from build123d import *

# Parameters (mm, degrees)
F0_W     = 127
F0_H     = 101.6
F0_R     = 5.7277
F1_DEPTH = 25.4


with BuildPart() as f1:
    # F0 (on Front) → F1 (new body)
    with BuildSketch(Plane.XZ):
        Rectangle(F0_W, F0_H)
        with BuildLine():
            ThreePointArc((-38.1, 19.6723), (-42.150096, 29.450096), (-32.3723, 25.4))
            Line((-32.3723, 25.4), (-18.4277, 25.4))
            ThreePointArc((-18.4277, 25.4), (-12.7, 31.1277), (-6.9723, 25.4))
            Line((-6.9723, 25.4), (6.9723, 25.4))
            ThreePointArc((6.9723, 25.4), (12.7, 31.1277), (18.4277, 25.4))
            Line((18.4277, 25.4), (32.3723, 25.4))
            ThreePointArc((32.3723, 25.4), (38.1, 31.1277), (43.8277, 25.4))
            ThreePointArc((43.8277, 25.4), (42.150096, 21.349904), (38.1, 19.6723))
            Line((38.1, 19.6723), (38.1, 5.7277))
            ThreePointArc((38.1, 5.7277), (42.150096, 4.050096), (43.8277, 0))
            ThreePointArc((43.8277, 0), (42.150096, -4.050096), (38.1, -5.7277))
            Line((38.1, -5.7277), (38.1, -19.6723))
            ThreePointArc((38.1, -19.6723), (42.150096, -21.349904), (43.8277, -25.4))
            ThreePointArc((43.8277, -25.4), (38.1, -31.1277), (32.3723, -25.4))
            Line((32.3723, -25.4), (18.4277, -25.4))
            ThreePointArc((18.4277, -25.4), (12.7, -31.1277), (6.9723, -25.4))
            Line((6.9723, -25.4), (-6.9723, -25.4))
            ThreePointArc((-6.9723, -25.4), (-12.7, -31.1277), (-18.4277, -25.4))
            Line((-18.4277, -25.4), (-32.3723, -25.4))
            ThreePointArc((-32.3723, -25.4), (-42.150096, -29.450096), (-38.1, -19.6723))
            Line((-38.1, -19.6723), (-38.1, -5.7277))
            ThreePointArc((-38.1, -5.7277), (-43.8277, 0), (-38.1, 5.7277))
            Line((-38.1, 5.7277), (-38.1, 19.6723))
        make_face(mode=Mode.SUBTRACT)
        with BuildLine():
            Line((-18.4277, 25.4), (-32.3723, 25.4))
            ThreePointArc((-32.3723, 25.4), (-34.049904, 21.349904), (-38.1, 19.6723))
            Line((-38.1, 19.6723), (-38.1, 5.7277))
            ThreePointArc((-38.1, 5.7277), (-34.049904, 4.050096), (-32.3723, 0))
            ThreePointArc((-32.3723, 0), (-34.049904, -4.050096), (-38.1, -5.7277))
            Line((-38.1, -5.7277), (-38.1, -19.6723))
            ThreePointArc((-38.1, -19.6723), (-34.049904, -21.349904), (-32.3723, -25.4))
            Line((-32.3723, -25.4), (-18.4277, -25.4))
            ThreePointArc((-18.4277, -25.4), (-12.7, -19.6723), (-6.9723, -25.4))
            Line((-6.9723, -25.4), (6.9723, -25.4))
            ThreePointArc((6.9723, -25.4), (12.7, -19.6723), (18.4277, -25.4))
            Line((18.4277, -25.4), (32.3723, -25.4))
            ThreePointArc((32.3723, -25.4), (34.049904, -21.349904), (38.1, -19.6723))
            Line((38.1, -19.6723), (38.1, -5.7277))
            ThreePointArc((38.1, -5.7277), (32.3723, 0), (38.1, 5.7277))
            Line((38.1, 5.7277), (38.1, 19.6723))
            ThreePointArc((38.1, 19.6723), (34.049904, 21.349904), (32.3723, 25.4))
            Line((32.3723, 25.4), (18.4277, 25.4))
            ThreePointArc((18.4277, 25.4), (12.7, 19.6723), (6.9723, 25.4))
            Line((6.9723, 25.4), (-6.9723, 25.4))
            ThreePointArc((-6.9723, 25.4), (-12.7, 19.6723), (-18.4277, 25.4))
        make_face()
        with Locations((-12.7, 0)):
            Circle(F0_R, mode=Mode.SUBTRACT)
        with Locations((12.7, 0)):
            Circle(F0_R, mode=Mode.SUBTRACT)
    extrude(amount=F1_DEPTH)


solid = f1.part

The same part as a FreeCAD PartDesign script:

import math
import FreeCAD as App
import Part
import Sketcher
Q = App.Units.Quantity

doc = App.newDocument("Part")
body = doc.addObject("PartDesign::Body", "Body")

sketch1 = body.newObject("Sketcher::SketchObject", "Sketch")
sketch1.AttachmentSupport = (doc.getObject("XZ_Plane"), [""])
sketch1.MapMode = "FlatFace"
sketch1.addGeometry([
    Part.LineSegment(App.Vector(-63.5, 50.8, 0), App.Vector(-63.5, -50.8, 0)),
    Part.LineSegment(App.Vector(-63.5, -50.8, 0), App.Vector(63.5, -50.8, 0)),
    Part.LineSegment(App.Vector(63.5, -50.8, 0), App.Vector(63.5, 50.8, 0)),
    Part.LineSegment(App.Vector(63.5, 50.8, 0), App.Vector(-63.5, 50.8, 0)),
    Part.ArcOfCircle(Part.Circle(App.Vector(-38.1, -25.4, 0), App.Vector(0, 0, 1), 5.7277), math.radians(89.999997), math.radians(360.000003)),
    Part.ArcOfCircle(Part.Circle(App.Vector(-38.099998, -25.399998, 0), App.Vector(0, 0, 1), 5.727698), math.radians(-0.000017), math.radians(90.000017)),
    Part.Circle(App.Vector(-12.7, -25.4, 0), App.Vector(0, 0, 1), 5.7277),
    Part.Circle(App.Vector(12.7, -25.4, 0), App.Vector(0, 0, 1), 5.7277),
    Part.ArcOfCircle(Part.Circle(App.Vector(38.1, -25.4, 0), App.Vector(0, 0, 1), 5.7277), math.radians(180), math.radians(360)),
    Part.ArcOfCircle(Part.Circle(App.Vector(38.099998, -25.399998, 0), App.Vector(0, 0, 1), 5.727698), math.radians(89.999983), math.radians(180.000017)),
    Part.ArcOfCircle(Part.Circle(App.Vector(38.100002, -25.399998, 0), App.Vector(0, 0, 1), 5.727698), math.radians(-0.000017), math.radians(90.000017)),
    Part.ArcOfCircle(Part.Circle(App.Vector(-38.1, 0, 0), App.Vector(0, 0, 1), 5.7277), math.radians(90), math.radians(270)),
    Part.ArcOfCircle(Part.Circle(App.Vector(-38.099998, 0.000002, 0), App.Vector(0, 0, 1), 5.727698), math.radians(-0.000017), math.radians(90.000017)),
    Part.ArcOfCircle(Part.Circle(App.Vector(-38.099998, -0.000002, 0), App.Vector(0, 0, 1), 5.727698), math.radians(-90.000017), math.radians(0.000017)),
    Part.Circle(App.Vector(-12.7, 0, 0), App.Vector(0, 0, 1), 5.7277),
    Part.ArcOfCircle(Part.Circle(App.Vector(-38.1, 25.4, 0), App.Vector(0, 0, 1), 5.7277), math.radians(-0.000003), math.radians(270.000003)),
    Part.ArcOfCircle(Part.Circle(App.Vector(-38.099998, 25.399998, 0), App.Vector(0, 0, 1), 5.727698), math.radians(-90.000017), math.radians(0.000017)),
    Part.Circle(App.Vector(-12.7, 25.4, 0), App.Vector(0, 0, 1), 5.7277),
    Part.Circle(App.Vector(12.7, 0, 0), App.Vector(0, 0, 1), 5.7277),
    Part.ArcOfCircle(Part.Circle(App.Vector(38.100002, -0.000002, 0), App.Vector(0, 0, 1), 5.727698), math.radians(-90.000017), math.radians(0.000017)),
    Part.ArcOfCircle(Part.Circle(App.Vector(38.1, 0, 0), App.Vector(0, 0, 1), 5.7277), math.radians(90), math.radians(270)),
    Part.ArcOfCircle(Part.Circle(App.Vector(38.100002, 0.000002, 0), App.Vector(0, 0, 1), 5.727698), math.radians(-0.000017), math.radians(90.000017)),
    Part.Circle(App.Vector(12.7, 25.4, 0), App.Vector(0, 0, 1), 5.7277),
    Part.ArcOfCircle(Part.Circle(App.Vector(38.100002, 25.399998, 0), App.Vector(0, 0, 1), 5.727698), math.radians(-90.000017), math.radians(0.000017)),
    Part.ArcOfCircle(Part.Circle(App.Vector(38.099998, 25.399998, 0), App.Vector(0, 0, 1), 5.727698), math.radians(179.999983), math.radians(270.000017)),
    Part.ArcOfCircle(Part.Circle(App.Vector(38.1, 25.4, 0), App.Vector(0, 0, 1), 5.7277), math.radians(0), math.radians(180)),
], False)
sketch1.addConstraint([
    Sketcher.Constraint("Coincident", 0, 2, 1, 1),
    Sketcher.Constraint("Coincident", 1, 2, 2, 1),
    Sketcher.Constraint("Coincident", 2, 2, 3, 1),
    Sketcher.Constraint("Coincident", 3, 2, 0, 1),
    Sketcher.Constraint("Tangent", 4, 1, 5, 2),
    Sketcher.Constraint("Coincident", 5, 1, 4, 2),
    Sketcher.Constraint("Tangent", 8, 1, 9, 2),
    Sketcher.Constraint("Tangent", 9, 1, 10, 2),
    Sketcher.Constraint("Tangent", 10, 1, 8, 2),
    Sketcher.Constraint("Tangent", 11, 1, 12, 2),
    Sketcher.Constraint("Tangent", 12, 1, 13, 2),
    Sketcher.Constraint("Tangent", 13, 1, 11, 2),
    Sketcher.Constraint("Tangent", 15, 1, 16, 2),
    Sketcher.Constraint("Coincident", 16, 1, 15, 2),
    Sketcher.Constraint("Tangent", 19, 1, 20, 2),
    Sketcher.Constraint("Tangent", 20, 1, 21, 2),
    Sketcher.Constraint("Tangent", 21, 1, 19, 2),
    Sketcher.Constraint("Tangent", 23, 1, 24, 2),
    Sketcher.Constraint("Tangent", 24, 1, 25, 2),
    Sketcher.Constraint("Tangent", 25, 1, 23, 2),
    Sketcher.Constraint("Vertical", 0),
    Sketcher.Constraint("Horizontal", 1),
    Sketcher.Constraint("Vertical", 2),
    Sketcher.Constraint("Horizontal", 3),
    Sketcher.Constraint("Equal", 5, 6),
    Sketcher.Constraint("Equal", 6, 7),
    Sketcher.Constraint("Equal", 7, 8),
    Sketcher.Constraint("Equal", 10, 11),
    Sketcher.Constraint("Equal", 13, 14),
    Sketcher.Constraint("Equal", 14, 15),
    Sketcher.Constraint("Equal", 16, 17),
    Sketcher.Constraint("Equal", 17, 18),
    Sketcher.Constraint("Equal", 18, 19),
    Sketcher.Constraint("Equal", 21, 22),
    Sketcher.Constraint("Equal", 22, 23),
    Sketcher.Constraint("Symmetric", 8, 3, 15, 3, -1, 1),
    Sketcher.Constraint("Symmetric", 7, 3, 17, 3, -1, 1),
    Sketcher.Constraint("Symmetric", 14, 3, 18, 3, -1, 1),
    Sketcher.Constraint("Symmetric", 11, 3, 19, 3, -1, 1),
    Sketcher.Constraint("Symmetric", 6, 3, 22, 3, -1, 1),
    Sketcher.Constraint("Symmetric", 4, 3, 23, 3, -1, 1),
    Sketcher.Constraint("Symmetric", 0, 2, 2, 2, -1, 1),
    Sketcher.Constraint("Symmetric", 6, 3, 7, 3, -2),
    Sketcher.Constraint("Symmetric", 4, 3, 8, 3, -2),
    Sketcher.Constraint("Symmetric", 13, 1, 19, 1, -2),
    Sketcher.Constraint("PointOnObject", 14, 3, -1),
    Sketcher.Constraint("PointOnObject", 12, 1, -1),
    Sketcher.Constraint("PointOnObject", 21, 1, -1),
    Sketcher.Constraint("Horizontal", 5, 3, 6, 3),
    Sketcher.Constraint("Horizontal", 10, 3, 5, 1),
    Sketcher.Constraint("Horizontal", 5, 1, 8, 1),
    Sketcher.Constraint("Horizontal", 8, 1, 10, 1),
    Sketcher.Constraint("Horizontal", 25, 3, 15, 1),
    Sketcher.Constraint("Horizontal", 15, 1, 24, 1),
    Sketcher.Constraint("Horizontal", 24, 1, 25, 1),
    Sketcher.Constraint("Vertical", 5, 3, 11, 3),
    Sketcher.Constraint("Vertical", 6, 3, 14, 3),
    Sketcher.Constraint("Vertical", 16, 3, 4, 1),
    Sketcher.Constraint("Vertical", 25, 3, 9, 1),
    Sketcher.Constraint("Vertical", 4, 1, 11, 1),
    Sketcher.Constraint("Vertical", 11, 1, 13, 1),
    Sketcher.Constraint("Vertical", 13, 1, 16, 1),
    Sketcher.Constraint("Vertical", 19, 1, 20, 1),
    Sketcher.Constraint("Vertical", 20, 1, 23, 1),
    Sketcher.Constraint("DistanceX", 1, 1, 1, 2, Q("5 in")),
    Sketcher.Constraint("DistanceY", 0, 2, 0, 1, Q("4 in")),
    Sketcher.Constraint("Diameter", 6, Q("0.451 in")),
    Sketcher.Constraint("DistanceY", 4, 3, -1, 1, Q("1 in")),
    Sketcher.Constraint("DistanceX", 5, 3, 6, 3, Q("0.9999999 in")),
    Sketcher.Constraint("DistanceX", 6, 3, 7, 3, Q("1 in")),
])
pad1 = body.newObject("PartDesign::Pad", "Pad")
pad1.Profile = sketch1
pad1.Length = Q("1 in")

doc.recompute()
